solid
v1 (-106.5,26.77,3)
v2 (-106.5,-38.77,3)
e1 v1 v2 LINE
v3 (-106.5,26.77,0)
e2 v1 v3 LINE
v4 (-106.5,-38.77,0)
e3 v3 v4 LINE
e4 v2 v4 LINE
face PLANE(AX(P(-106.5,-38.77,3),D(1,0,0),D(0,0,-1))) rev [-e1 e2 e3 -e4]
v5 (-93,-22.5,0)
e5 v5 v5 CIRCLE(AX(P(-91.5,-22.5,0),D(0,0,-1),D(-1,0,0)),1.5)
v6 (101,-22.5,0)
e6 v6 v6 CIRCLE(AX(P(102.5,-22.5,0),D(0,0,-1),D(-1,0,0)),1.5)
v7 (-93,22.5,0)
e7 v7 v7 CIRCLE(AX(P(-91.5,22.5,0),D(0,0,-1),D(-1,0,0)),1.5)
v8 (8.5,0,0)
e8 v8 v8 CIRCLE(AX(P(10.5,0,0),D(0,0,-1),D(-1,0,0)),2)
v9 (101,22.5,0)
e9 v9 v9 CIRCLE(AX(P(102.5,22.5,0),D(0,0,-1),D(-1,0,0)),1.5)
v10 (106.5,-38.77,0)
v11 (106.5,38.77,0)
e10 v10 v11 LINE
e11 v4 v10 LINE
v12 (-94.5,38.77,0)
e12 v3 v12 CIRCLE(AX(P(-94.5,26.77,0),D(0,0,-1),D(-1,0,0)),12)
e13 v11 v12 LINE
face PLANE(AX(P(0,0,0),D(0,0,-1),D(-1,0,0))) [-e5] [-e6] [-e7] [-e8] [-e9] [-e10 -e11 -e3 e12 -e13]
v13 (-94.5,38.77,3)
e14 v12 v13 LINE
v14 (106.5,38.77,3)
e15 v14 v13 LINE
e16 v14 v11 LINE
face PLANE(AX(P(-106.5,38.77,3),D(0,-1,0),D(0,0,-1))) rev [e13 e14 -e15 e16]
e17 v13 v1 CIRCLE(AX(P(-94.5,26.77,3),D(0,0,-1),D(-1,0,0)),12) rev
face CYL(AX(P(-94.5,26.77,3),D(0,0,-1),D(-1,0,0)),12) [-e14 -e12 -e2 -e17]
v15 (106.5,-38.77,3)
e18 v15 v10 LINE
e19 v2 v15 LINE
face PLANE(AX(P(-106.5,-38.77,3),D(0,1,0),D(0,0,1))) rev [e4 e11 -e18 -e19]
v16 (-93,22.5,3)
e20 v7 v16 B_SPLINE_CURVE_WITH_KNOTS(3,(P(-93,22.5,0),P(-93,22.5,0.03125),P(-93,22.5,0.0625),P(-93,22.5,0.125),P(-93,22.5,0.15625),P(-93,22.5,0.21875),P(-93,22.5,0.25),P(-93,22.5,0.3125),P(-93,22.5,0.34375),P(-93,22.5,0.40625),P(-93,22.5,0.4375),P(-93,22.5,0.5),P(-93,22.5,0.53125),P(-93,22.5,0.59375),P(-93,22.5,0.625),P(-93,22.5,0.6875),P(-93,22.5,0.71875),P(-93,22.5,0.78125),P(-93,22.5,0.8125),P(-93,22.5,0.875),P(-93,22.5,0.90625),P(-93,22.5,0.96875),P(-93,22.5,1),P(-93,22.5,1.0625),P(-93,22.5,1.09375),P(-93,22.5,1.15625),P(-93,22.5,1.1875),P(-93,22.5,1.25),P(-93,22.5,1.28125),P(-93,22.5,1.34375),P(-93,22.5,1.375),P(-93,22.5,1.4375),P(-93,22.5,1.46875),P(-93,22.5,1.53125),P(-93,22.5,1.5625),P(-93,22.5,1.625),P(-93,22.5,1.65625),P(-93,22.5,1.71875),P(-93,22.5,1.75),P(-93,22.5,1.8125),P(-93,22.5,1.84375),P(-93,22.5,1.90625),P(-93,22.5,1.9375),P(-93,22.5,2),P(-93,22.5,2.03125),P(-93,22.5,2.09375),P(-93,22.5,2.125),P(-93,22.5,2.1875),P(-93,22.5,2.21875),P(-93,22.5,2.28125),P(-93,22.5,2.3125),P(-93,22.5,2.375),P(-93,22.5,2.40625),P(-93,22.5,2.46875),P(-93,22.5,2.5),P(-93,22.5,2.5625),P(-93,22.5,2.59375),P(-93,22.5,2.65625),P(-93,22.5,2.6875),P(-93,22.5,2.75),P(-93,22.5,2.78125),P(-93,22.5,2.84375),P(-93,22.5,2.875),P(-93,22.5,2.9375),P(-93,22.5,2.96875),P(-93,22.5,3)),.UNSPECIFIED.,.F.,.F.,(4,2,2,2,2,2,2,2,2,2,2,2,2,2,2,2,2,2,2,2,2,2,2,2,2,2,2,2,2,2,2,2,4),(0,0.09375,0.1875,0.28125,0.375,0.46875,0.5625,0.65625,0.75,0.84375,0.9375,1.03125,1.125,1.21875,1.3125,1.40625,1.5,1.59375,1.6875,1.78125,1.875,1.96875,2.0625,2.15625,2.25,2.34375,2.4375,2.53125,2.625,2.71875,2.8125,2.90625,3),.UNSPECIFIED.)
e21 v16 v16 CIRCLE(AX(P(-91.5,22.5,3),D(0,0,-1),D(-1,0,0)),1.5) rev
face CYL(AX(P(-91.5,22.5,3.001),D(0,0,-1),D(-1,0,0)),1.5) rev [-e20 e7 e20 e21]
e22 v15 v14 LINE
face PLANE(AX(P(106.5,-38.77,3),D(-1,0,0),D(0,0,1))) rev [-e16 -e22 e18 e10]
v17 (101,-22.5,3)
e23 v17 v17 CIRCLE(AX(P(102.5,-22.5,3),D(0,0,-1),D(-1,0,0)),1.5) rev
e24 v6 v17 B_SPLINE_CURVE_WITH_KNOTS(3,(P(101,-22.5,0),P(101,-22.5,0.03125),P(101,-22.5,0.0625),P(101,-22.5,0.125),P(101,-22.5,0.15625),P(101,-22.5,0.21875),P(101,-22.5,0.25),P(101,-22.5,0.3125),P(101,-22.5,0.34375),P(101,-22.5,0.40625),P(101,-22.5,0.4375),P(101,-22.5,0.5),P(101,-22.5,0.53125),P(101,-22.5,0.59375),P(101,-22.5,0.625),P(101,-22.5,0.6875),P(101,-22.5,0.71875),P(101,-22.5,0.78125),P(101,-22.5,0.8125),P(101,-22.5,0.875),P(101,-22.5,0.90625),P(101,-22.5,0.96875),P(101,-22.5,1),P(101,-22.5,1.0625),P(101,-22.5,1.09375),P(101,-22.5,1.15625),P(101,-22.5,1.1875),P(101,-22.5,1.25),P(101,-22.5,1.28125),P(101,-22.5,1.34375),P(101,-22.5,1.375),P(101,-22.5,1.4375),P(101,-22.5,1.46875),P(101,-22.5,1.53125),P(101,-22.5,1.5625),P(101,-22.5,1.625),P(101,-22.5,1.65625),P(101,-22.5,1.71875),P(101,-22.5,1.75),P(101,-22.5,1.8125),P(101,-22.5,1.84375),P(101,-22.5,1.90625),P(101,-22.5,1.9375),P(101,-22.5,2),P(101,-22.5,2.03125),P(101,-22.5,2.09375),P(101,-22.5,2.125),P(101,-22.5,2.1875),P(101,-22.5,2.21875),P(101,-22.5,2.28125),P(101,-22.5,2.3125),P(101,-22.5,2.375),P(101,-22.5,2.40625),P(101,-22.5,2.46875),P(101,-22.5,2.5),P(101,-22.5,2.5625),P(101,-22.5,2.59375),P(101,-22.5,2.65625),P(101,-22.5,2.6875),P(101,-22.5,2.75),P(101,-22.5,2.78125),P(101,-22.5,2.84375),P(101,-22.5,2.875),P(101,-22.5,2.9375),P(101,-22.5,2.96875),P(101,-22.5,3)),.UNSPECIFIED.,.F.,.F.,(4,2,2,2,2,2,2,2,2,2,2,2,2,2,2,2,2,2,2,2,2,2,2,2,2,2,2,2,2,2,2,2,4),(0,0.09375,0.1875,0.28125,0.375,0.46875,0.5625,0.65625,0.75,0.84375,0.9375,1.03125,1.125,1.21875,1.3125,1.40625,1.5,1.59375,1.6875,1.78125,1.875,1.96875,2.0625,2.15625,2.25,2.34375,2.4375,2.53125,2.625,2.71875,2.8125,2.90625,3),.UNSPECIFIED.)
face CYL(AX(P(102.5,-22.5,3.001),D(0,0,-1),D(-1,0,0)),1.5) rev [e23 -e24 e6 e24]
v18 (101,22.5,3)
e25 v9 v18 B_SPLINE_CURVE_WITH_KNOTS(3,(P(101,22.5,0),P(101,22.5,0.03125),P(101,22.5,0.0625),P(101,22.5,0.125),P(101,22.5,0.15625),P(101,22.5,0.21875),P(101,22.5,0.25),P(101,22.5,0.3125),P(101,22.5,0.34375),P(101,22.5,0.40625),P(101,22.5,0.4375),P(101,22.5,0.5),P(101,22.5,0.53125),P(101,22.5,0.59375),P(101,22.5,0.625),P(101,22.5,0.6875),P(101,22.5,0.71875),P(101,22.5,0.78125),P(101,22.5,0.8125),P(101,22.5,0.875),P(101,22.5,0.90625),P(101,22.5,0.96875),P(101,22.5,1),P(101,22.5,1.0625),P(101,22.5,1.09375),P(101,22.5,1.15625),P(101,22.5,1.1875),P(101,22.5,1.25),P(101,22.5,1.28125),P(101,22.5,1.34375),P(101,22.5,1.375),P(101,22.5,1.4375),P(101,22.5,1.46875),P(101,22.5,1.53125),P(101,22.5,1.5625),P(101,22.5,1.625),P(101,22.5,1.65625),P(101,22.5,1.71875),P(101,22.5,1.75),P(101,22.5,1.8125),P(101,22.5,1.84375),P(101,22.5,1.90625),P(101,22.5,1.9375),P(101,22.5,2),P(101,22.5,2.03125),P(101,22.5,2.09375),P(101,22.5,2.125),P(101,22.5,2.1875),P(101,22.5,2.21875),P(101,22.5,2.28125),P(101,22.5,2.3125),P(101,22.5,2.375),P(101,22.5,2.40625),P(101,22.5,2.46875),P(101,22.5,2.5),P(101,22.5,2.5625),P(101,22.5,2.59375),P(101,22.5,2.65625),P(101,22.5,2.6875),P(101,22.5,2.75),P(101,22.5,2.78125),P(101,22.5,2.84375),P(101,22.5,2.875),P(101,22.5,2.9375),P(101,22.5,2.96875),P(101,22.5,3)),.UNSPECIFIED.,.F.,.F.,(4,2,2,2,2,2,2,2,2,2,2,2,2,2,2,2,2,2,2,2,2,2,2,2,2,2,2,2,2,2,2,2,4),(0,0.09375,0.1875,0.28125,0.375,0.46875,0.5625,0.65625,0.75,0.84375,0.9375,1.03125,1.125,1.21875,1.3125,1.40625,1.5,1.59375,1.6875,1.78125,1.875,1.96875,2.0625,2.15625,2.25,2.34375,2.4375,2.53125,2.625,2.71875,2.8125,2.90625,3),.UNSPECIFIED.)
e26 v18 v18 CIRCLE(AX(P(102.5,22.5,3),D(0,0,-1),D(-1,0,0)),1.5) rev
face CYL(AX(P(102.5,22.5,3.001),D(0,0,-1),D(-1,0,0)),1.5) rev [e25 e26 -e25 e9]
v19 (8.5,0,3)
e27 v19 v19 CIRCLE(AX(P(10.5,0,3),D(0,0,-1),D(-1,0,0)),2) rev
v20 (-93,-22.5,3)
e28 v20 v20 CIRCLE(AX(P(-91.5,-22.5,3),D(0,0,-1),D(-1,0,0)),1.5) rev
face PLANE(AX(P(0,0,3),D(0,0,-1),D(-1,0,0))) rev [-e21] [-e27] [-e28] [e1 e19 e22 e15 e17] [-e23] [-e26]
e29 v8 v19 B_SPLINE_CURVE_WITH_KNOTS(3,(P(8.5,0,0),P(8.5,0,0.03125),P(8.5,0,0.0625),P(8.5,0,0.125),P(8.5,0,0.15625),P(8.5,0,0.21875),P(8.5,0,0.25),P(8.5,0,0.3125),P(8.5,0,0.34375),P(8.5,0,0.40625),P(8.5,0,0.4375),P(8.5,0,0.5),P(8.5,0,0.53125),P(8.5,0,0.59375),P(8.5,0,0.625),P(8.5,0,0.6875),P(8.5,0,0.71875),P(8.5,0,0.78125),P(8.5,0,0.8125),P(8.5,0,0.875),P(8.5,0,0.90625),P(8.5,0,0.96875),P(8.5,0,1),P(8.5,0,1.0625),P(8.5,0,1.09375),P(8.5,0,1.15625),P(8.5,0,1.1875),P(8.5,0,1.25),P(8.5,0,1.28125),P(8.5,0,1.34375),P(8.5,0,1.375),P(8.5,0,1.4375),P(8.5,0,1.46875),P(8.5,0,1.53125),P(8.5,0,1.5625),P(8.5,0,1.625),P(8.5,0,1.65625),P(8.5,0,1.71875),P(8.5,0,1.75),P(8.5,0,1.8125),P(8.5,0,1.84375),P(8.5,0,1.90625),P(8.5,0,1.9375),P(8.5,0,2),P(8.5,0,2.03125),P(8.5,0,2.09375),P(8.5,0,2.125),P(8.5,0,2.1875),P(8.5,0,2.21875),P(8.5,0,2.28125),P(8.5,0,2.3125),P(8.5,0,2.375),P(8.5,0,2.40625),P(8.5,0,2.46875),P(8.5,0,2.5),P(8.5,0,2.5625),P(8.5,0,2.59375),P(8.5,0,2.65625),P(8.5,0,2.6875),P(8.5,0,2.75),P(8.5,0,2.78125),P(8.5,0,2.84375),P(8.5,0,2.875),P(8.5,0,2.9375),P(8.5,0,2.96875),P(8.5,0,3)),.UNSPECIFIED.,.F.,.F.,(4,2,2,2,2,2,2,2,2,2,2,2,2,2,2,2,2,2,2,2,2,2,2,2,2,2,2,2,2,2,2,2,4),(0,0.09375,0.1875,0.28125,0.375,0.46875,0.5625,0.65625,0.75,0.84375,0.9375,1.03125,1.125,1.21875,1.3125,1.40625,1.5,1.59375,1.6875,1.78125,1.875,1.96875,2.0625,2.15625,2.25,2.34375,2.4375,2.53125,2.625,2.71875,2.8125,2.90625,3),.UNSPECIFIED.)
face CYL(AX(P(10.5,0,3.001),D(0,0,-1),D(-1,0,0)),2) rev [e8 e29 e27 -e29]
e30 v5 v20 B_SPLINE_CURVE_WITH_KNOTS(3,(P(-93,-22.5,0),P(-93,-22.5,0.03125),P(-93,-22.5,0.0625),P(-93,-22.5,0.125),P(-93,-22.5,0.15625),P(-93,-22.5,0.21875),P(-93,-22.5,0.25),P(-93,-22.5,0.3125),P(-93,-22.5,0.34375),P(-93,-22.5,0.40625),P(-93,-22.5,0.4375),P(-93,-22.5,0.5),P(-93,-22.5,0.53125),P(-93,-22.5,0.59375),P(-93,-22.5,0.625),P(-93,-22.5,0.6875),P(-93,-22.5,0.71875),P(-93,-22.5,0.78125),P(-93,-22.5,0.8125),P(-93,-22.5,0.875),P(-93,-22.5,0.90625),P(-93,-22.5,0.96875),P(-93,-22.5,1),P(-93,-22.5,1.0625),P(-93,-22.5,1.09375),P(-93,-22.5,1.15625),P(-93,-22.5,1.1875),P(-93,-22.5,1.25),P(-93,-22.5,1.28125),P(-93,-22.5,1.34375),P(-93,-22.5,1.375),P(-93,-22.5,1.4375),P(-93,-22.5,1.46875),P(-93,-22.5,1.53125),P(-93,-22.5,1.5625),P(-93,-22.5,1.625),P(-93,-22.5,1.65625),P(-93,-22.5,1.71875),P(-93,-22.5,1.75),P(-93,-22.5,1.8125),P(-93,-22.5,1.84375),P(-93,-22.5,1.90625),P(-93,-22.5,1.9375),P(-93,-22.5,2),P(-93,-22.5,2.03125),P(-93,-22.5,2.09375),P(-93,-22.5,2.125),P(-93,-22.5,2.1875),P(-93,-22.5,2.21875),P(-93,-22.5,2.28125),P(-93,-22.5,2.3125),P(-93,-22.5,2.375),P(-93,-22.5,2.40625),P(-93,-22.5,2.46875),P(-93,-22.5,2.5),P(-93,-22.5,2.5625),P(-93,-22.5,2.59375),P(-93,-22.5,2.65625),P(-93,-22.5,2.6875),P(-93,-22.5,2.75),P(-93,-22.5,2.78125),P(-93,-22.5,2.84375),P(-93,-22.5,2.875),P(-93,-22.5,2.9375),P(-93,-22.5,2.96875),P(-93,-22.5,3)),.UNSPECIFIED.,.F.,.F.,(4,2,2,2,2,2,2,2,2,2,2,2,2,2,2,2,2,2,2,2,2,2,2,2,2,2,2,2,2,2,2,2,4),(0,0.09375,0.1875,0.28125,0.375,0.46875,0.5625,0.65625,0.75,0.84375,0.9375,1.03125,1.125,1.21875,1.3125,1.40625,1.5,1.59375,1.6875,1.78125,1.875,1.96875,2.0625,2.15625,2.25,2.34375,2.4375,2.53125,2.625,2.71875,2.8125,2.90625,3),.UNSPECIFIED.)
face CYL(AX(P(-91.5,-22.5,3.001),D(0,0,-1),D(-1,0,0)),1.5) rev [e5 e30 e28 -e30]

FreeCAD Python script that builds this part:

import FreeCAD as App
import Part
import Sketcher

V = App.Vector
Q = App.Units.Quantity


def edges_at(feature, points):
    """Names of the edges that pass closest to the given points."""
    edges = feature.Shape.Edges
    near = lambda p: min(range(len(edges)), key=lambda i: edges[i].distToShape(Part.Vertex(*p))[0])
    return sorted({f"Edge{near(p) + 1}" for p in points})

doc = App.newDocument("Part")
body = doc.addObject("PartDesign::Body", "Body")

# Sketch on XY plane
sketch1 = body.newObject("Sketcher::SketchObject", "Sketch")
sketch1.AttachmentSupport = (doc.getObject("XY_Plane"), [""])
sketch1.MapMode = "FlatFace"
sketch1.addGeometry([
    Part.LineSegment(V(-106, 39, 0), V(-106, -39, 0)),
    Part.LineSegment(V(-106, -39, 0), V(106, -39, 0)),
    Part.LineSegment(V(106, -39, 0), V(106, 39, 0)),
    Part.LineSegment(V(106, 39, 0), V(-106, 39, 0)),
], False)
sketch1.addConstraint([
    Sketcher.Constraint("Coincident", 0, 2, 1, 1),
    Sketcher.Constraint("Coincident", 1, 2, 2, 1),
    Sketcher.Constraint("Coincident", 2, 2, 3, 1),
    Sketcher.Constraint("Coincident", 3, 2, 0, 1),
    Sketcher.Constraint("Vertical", 0),
    Sketcher.Constraint("Horizontal", 1),
    Sketcher.Constraint("Vertical", 2),
    Sketcher.Constraint("Horizontal", 3),
    Sketcher.Constraint("Symmetric", 0, 2, 2, 2, -1, 1),
    Sketcher.Constraint("DistanceX", 1, 1, 1, 2, Q("213 mm")),
    Sketcher.Constraint("DistanceY", 0, 2, 0, 1, Q("77.54 mm")),
])
pad1 = body.newObject("PartDesign::Pad", "Pad")
pad1.Profile = sketch1
pad1.Length = 3
doc.recompute()

fillet = body.newObject("PartDesign::Fillet", "Fillet")
fillet.Base = (pad1, edges_at(pad1, [(-106.5, 38.77, 1.5)]))
fillet.Radius = 12

# Sketch on XY plane
sketch2 = body.newObject("Sketcher::SketchObject", "Sketch001")
sketch2.AttachmentSupport = (doc.getObject("XY_Plane"), [""])
sketch2.MapMode = "FlatFace"
sketch2.addGeometry(Part.Circle(V(10.5, 0, 0), V(0, 0, 1), 2), False)
sketch2.addConstraint([
    Sketcher.Constraint("PointOnObject", 0, 3, -1),
    Sketcher.Constraint("Diameter", 0, Q("4 mm")),
    Sketcher.Constraint("DistanceX", -1, 1, 0, 3, Q("10.5 mm")),
])
pocket1 = body.newObject("PartDesign::Pocket", "Pocket")
pocket1.Profile = sketch2
pocket1.Type = "UpToFirst"
pocket1.Reversed = True

# Sketch on XY plane
sketch3 = body.newObject("Sketcher::SketchObject", "Sketch002")
sketch3.AttachmentSupport = (doc.getObject("XY_Plane"), [""])
sketch3.MapMode = "FlatFace"
sketch3.addGeometry(Part.Circle(V(102.5, 22.5, 0), V(0, 0, 1), 1.5), False)
sketch3.addConstraint([
    Sketcher.Constraint("Diameter", 0, Q("3 mm")),
    Sketcher.Constraint("DistanceX", -1, 1, 0, 3, Q("102.5 mm")),
    Sketcher.Constraint("DistanceY", -1, 1, 0, 3, Q("22.5 mm")),
])
pocket2 = body.newObject("PartDesign::Pocket", "Pocket001")
pocket2.Profile = sketch3
pocket2.Type = "UpToFirst"
pocket2.Reversed = True

# Sketch on XY plane
sketch4 = body.newObject("Sketcher::SketchObject", "Sketch003")
sketch4.AttachmentSupport = (doc.getObject("XY_Plane"), [""])
sketch4.MapMode = "FlatFace"
sketch4.addGeometry(Part.Circle(V(102.5, -22.5, 0), V(0, 0, 1), 1.5), False)
sketch4.addConstraint([
    Sketcher.Constraint("Diameter", 0, Q("3 mm")),
    Sketcher.Constraint("DistanceX", -1, 1, 0, 3, Q("102.5 mm")),
    Sketcher.Constraint("DistanceY", 0, 3, -1, 1, Q("22.5 mm")),
])
pocket3 = body.newObject("PartDesign::Pocket", "Pocket002")
pocket3.Profile = sketch4
pocket3.Type = "UpToFirst"
pocket3.Reversed = True

# Sketch on XY plane
sketch5 = body.newObject("Sketcher::SketchObject", "Sketch004")
sketch5.AttachmentSupport = (doc.getObject("XY_Plane"), [""])
sketch5.MapMode = "FlatFace"
sketch5.addGeometry(Part.Circle(V(-91.5, 22.5, 0), V(0, 0, 1), 1.5), False)
sketch5.addConstraint([
    Sketcher.Constraint("Diameter", 0, Q("3 mm")),
    Sketcher.Constraint("DistanceX", 0, 3, -1, 1, Q("91.5 mm")),
    Sketcher.Constraint("DistanceY", -1, 1, 0, 3, Q("22.5 mm")),
])
pocket4 = body.newObject("PartDesign::Pocket", "Pocket003")
pocket4.Profile = sketch5
pocket4.Type = "UpToFirst"
pocket4.Reversed = True

# Sketch on XY plane
sketch6 = body.newObject("Sketcher::SketchObject", "Sketch005")
sketch6.AttachmentSupport = (doc.getObject("XY_Plane"), [""])
sketch6.MapMode = "FlatFace"
sketch6.addGeometry(Part.Circle(V(-91.5, -22.5, 0), V(0, 0, 1), 1.5), False)
sketch6.addConstraint([
    Sketcher.Constraint("Diameter", 0, Q("3 mm")),
    Sketcher.Constraint("DistanceX", 0, 3, -1, 1, Q("91.5 mm")),
    Sketcher.Constraint("DistanceY", 0, 3, -1, 1, Q("22.5 mm")),
])
pocket5 = body.newObject("PartDesign::Pocket", "Pocket004")
pocket5.Profile = sketch6
pocket5.Type = "UpToFirst"
pocket5.Reversed = True

doc.recompute()
